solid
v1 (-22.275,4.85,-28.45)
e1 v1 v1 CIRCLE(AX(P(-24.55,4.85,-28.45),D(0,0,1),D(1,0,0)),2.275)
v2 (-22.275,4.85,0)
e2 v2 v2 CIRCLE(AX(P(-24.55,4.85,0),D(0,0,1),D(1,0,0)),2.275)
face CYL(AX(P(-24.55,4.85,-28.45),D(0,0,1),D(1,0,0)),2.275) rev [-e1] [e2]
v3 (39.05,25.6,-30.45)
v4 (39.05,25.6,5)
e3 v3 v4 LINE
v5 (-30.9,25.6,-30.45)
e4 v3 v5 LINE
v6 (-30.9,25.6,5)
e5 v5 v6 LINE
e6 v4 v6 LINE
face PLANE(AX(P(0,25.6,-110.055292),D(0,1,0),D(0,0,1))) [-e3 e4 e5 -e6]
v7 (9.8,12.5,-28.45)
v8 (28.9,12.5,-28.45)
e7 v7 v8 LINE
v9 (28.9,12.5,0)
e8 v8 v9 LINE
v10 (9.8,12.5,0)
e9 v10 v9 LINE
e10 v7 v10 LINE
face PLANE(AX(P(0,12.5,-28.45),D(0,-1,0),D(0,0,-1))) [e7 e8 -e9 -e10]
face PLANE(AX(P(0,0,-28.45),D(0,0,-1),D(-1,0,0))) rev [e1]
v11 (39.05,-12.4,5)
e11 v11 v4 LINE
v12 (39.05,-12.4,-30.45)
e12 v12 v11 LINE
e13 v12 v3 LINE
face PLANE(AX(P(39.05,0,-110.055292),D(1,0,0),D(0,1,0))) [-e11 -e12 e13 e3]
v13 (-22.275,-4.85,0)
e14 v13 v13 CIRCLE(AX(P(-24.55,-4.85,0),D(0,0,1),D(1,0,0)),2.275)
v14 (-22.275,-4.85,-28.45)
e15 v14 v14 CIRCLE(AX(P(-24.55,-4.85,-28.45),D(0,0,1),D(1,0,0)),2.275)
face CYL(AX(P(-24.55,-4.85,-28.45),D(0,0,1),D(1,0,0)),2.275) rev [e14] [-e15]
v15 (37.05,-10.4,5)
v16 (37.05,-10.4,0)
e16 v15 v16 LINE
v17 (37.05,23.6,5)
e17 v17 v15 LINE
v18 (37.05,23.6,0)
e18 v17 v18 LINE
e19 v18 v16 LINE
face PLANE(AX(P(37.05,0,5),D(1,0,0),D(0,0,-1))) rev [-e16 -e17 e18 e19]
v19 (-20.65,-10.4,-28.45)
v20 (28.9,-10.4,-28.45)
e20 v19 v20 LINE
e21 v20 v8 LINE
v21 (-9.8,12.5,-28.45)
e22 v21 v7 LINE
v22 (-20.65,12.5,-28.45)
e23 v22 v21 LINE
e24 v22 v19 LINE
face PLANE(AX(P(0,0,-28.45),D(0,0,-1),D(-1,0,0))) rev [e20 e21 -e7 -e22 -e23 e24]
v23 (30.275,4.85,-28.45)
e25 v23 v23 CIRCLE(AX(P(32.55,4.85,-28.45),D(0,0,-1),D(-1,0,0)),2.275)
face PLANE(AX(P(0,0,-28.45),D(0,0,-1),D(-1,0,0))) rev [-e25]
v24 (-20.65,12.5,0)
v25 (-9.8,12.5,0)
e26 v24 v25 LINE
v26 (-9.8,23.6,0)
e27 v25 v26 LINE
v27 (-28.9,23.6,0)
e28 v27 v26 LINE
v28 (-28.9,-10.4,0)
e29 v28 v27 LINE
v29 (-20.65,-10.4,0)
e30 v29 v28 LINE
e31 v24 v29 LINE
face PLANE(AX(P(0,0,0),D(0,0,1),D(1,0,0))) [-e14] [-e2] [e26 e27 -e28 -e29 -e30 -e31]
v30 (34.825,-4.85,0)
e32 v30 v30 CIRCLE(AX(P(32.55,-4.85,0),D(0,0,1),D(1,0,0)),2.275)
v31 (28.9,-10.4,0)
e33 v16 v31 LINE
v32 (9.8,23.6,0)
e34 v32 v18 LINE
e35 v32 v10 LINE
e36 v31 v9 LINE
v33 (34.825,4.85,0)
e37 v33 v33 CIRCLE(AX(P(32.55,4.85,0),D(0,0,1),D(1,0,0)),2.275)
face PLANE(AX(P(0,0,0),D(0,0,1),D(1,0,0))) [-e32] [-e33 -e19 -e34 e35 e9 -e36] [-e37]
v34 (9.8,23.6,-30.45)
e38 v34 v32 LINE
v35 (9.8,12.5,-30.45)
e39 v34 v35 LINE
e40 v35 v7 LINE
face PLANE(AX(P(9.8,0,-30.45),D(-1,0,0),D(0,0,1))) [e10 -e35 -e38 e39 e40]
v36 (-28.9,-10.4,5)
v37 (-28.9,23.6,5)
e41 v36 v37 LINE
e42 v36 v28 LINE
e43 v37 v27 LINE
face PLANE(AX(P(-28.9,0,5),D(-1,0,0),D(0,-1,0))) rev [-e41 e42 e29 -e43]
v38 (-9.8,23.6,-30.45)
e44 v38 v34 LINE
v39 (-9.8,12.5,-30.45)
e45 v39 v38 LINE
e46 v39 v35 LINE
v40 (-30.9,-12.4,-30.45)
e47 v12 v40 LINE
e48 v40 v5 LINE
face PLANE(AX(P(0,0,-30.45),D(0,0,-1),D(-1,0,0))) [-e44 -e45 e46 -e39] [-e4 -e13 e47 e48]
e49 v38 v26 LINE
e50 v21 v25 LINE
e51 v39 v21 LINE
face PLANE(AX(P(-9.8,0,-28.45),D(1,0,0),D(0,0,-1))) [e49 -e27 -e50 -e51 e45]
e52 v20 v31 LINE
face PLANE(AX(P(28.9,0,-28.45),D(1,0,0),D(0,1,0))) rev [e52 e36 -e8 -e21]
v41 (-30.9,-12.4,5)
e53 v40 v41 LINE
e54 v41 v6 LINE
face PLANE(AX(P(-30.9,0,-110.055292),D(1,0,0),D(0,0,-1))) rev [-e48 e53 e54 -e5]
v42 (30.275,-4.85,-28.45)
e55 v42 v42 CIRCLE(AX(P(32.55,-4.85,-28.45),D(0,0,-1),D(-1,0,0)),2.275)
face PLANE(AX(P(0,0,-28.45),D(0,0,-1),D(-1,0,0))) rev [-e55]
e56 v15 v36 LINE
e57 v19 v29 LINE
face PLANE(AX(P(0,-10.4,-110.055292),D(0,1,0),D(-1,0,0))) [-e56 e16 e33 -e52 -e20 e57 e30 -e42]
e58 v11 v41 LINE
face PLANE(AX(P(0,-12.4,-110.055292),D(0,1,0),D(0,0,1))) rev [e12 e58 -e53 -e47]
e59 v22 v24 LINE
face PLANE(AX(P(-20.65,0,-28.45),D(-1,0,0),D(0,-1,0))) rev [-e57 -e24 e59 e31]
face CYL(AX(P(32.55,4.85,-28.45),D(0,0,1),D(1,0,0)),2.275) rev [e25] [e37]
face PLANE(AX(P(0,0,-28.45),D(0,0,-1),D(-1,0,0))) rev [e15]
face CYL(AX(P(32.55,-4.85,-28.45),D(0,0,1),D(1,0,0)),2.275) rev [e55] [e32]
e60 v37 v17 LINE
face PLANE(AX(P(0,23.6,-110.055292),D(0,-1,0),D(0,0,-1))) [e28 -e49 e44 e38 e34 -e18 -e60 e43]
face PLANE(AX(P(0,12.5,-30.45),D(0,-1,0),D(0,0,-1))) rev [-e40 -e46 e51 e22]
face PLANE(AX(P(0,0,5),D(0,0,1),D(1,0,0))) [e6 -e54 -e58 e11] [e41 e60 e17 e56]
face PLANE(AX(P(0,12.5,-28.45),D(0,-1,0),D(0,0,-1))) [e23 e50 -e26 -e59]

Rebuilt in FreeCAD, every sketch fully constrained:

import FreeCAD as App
import Part
import Sketcher
from FreeCAD import Vector

doc = App.newDocument("Part")
body = doc.addObject("PartDesign::Body", "Body")
body.AllowCompound = True

sketch1 = body.newObject("Sketcher::SketchObject", "Sketch")
sketch1.AttachmentSupport = (doc.getObject("XY_Plane"), [""])
sketch1.MapMode = "FlatFace"
sketch1.addGeometry([
    Part.LineSegment(Vector(-20.6, 12.5, 0), Vector(-9.8, 12.5, 0)),
    Part.LineSegment(Vector(-9.8, 12.5, 0), Vector(-9.8, 23.6, 0)),
    Part.LineSegment(Vector(-9.8, 23.6, 0), Vector(-28.9, 23.6, 0)),
    Part.LineSegment(Vector(-28.9, 23.6, 0), Vector(-28.9, -10.4, 0)),
    Part.LineSegment(Vector(-28.9, -10.4, 0), Vector(-20.6, -10.4, 0)),
    Part.LineSegment(Vector(-20.6, -10.4, 0), Vector(-20.6, 12.5, 0)),
    Part.Circle(Vector(-24.6, 4.8, 0), Vector(0, 0, 1), 2.3),
    Part.Circle(Vector(-24.6, -4.8, 0), Vector(0, 0, 1), 2.3),
    Part.LineSegment(Vector(9.8, 12.5, 0), Vector(28.9, 12.5, 0)),
    Part.LineSegment(Vector(28.9, 12.5, 0), Vector(28.9, -10.4, 0)),
    Part.LineSegment(Vector(28.9, -10.4, 0), Vector(37, -10.4, 0)),
    Part.LineSegment(Vector(37, -10.4, 0), Vector(37, 23.6, 0)),
    Part.LineSegment(Vector(37, 23.6, 0), Vector(9.8, 23.6, 0)),
    Part.LineSegment(Vector(9.8, 23.6, 0), Vector(9.8, 12.5, 0)),
    Part.Circle(Vector(32.5, 4.8, 0), Vector(0, 0, 1), 2.3),
    Part.Circle(Vector(32.5, -4.8, 0), Vector(0, 0, 1), 2.3),
], False)
sketch1.addConstraint([
    Sketcher.Constraint("Coincident", 0, 2, 1, 1),
    Sketcher.Constraint("Coincident", 1, 2, 2, 1),
    Sketcher.Constraint("Coincident", 2, 2, 3, 1),
    Sketcher.Constraint("Coincident", 3, 2, 4, 1),
    Sketcher.Constraint("Coincident", 4, 2, 5, 1),
    Sketcher.Constraint("Coincident", 5, 2, 0, 1),
    Sketcher.Constraint("Coincident", 8, 2, 9, 1),
    Sketcher.Constraint("Coincident", 9, 2, 10, 1),
    Sketcher.Constraint("Coincident", 10, 2, 11, 1),
    Sketcher.Constraint("Coincident", 11, 2, 12, 1),
    Sketcher.Constraint("Coincident", 12, 2, 13, 1),
    Sketcher.Constraint("Coincident", 13, 2, 8, 1),
    Sketcher.Constraint("Horizontal", 0),
    Sketcher.Constraint("Vertical", 1),
    Sketcher.Constraint("Horizontal", 2),
    Sketcher.Constraint("Vertical", 3),
    Sketcher.Constraint("Horizontal", 4),
    Sketcher.Constraint("Vertical", 5),
    Sketcher.Constraint("Horizontal", 8),
    Sketcher.Constraint("Vertical", 9),
    Sketcher.Constraint("Horizontal", 10),
    Sketcher.Constraint("Vertical", 11),
    Sketcher.Constraint("Horizontal", 12),
    Sketcher.Constraint("Vertical", 13),
    Sketcher.Constraint("Equal", 6, 7),
    Sketcher.Constraint("Equal", 7, 14),
    Sketcher.Constraint("Equal", 14, 15),
    Sketcher.Constraint("Symmetric", 3, 2, 9, 2, -2),
    Sketcher.Constraint("Symmetric", 1, 2, 12, 2, -2),
    Sketcher.Constraint("Symmetric", 6, 3, 7, 3, -1),
    Sketcher.Constraint("Symmetric", 14, 3, 15, 3, -1),
    Sketcher.Constraint("Horizontal", 6, 3, 14, 3),
    Sketcher.Constraint("Horizontal", 5, 2, 8, 2),
    Sketcher.Constraint("Diameter", 6, 4.55),
    Sketcher.Constraint("DistanceY", 3, 2, 3, 1, 34.0),
    Sketcher.Constraint("DistanceX", 2, 2, 2, 1, 19.1),
    Sketcher.Constraint("DistanceY", 1, 1, 1, 2, 11.1),
    Sketcher.Constraint("DistanceX", 0, 1, 0, 2, 10.85),
    Sketcher.Constraint("DistanceX", 10, 1, 10, 2, 8.15),
    Sketcher.Constraint("DistanceX", 0, 2, -1, 1, 9.8),
    Sketcher.Constraint("DistanceY", -1, 1, 0, 2, 12.5),
    Sketcher.Constraint("DistanceY", 7, 3, 6, 3, 9.7),
    Sketcher.Constraint("DistanceX", 6, 3, 14, 3, 57.1),
    Sketcher.Constraint("DistanceX", 7, 3, 4, 2, 3.9),
])
pad1 = body.newObject("PartDesign::Pad", "Pad")
pad1.Profile = sketch1
pad1.Length = 28.45
pad1.Reversed = True

sketch2 = body.newObject("Sketcher::SketchObject", "Sketch001")
sketch2.AttachmentSupport = (doc.getObject("XY_Plane"), [""])
sketch2.MapMode = "FlatFace"
sketch2.AttachmentOffset = App.Placement(Vector(0, 0, -28.45), App.Rotation())
sketch2.addGeometry([
    Part.LineSegment(Vector(-10, 12, 0), Vector(-10, 24, 0)),
    Part.LineSegment(Vector(-10, 24, 0), Vector(-29, 24, 0)),
    Part.LineSegment(Vector(-29, 24, 0), Vector(-29, -10, 0)),
    Part.LineSegment(Vector(-29, -10, 0), Vector(37, -10, 0)),
    Part.LineSegment(Vector(37, -10, 0), Vector(37, 24, 0)),
    Part.LineSegment(Vector(37, 24, 0), Vector(10, 24, 0)),
    Part.LineSegment(Vector(10, 24, 0), Vector(10, 12, 0)),
    Part.LineSegment(Vector(10, 12, 0), Vector(-10, 12, 0)),
], False)
sketch2.addConstraint([
    Sketcher.Constraint("Coincident", 0, 2, 1, 1),
    Sketcher.Constraint("Coincident", 1, 2, 2, 1),
    Sketcher.Constraint("Coincident", 2, 2, 3, 1),
    Sketcher.Constraint("Coincident", 3, 2, 4, 1),
    Sketcher.Constraint("Coincident", 4, 2, 5, 1),
    Sketcher.Constraint("Coincident", 5, 2, 6, 1),
    Sketcher.Constraint("Coincident", 6, 2, 7, 1),
    Sketcher.Constraint("Coincident", 7, 2, 0, 1),
    Sketcher.Constraint("Vertical", 0),
    Sketcher.Constraint("Horizontal", 1),
    Sketcher.Constraint("Vertical", 2),
    Sketcher.Constraint("Horizontal", 3),
    Sketcher.Constraint("Vertical", 4),
    Sketcher.Constraint("Horizontal", 5),
    Sketcher.Constraint("Vertical", 6),
    Sketcher.Constraint("Horizontal", 7),
    Sketcher.Constraint("Symmetric", 0, 2, 5, 2, -2),
    Sketcher.Constraint("DistanceY", 2, 2, 2, 1, 34.0),
    Sketcher.Constraint("DistanceX", 1, 2, 1, 1, 19.1),
    Sketcher.Constraint("DistanceX", 7, 2, 7, 1, 19.6),
    Sketcher.Constraint("DistanceY", 0, 1, 0, 2, 11.1),
    Sketcher.Constraint("DistanceX", 3, 1, 3, 2, 65.95),
    Sketcher.Constraint("DistanceY", -1, 1, 0, 2, 23.6),
])
pad2 = body.newObject("PartDesign::Pad", "Pad001")
pad2.Profile = sketch2
pad2.Length = 2
pad2.Reversed = True

sketch3 = body.newObject("Sketcher::SketchObject", "Sketch002")
sketch3.AttachmentSupport = (doc.getObject("XY_Plane"), [""])
sketch3.MapMode = "FlatFace"
sketch3.addGeometry([
    Part.LineSegment(Vector(-31, 26, 0), Vector(-31, -12, 0)),
    Part.LineSegment(Vector(-31, -12, 0), Vector(39, -12, 0)),
    Part.LineSegment(Vector(39, -12, 0), Vector(39, 26, 0)),
    Part.LineSegment(Vector(39, 26, 0), Vector(-31, 26, 0)),
    Part.LineSegment(Vector(-29, 24, 0), Vector(37, 24, 0)),
    Part.LineSegment(Vector(37, 24, 0), Vector(37, -10, 0)),
    Part.LineSegment(Vector(37, -10, 0), Vector(-29, -10, 0)),
    Part.LineSegment(Vector(-29, -10, 0), Vector(-29, 24, 0)),
], False)
sketch3.addConstraint([
    Sketcher.Constraint("Coincident", 0, 2, 1, 1),
    Sketcher.Constraint("Coincident", 1, 2, 2, 1),
    Sketcher.Constraint("Coincident", 2, 2, 3, 1),
    Sketcher.Constraint("Coincident", 3, 2, 0, 1),
    Sketcher.Constraint("Coincident", 4, 2, 5, 1),
    Sketcher.Constraint("Coincident", 5, 2, 6, 1),
    Sketcher.Constraint("Coincident", 6, 2, 7, 1),
    Sketcher.Constraint("Coincident", 7, 2, 4, 1),
    Sketcher.Constraint("Vertical", 0),
    Sketcher.Constraint("Horizontal", 1),
    Sketcher.Constraint("Vertical", 2),
    Sketcher.Constraint("Horizontal", 3),
    Sketcher.Constraint("Horizontal", 4),
    Sketcher.Constraint("Vertical", 5),
    Sketcher.Constraint("Horizontal", 6),
    Sketcher.Constraint("Vertical", 7),
    Sketcher.Constraint("DistanceY", 0, 2, 0, 1, 38.0),
    Sketcher.Constraint("DistanceY", 5, 2, 5, 1, 34.0),
    Sketcher.Constraint("DistanceX", 4, 2, 2, 2, 2.0),
    Sketcher.Constraint("DistanceY", 4, 2, 2, 2, 2.0),
    Sketcher.Constraint("DistanceX", 0, 2, 6, 2, 2.0),
    Sketcher.Constraint("DistanceX", 1, 1, 1, 2, 69.95),
    Sketcher.Constraint("DistanceX", 0, 2, -1, 1, 30.9),
    Sketcher.Constraint("DistanceY", 0, 2, -1, 1, 12.4),
])
pad3 = body.newObject("PartDesign::Pad", "Pad002")
pad3.Profile = sketch3
pad3.Length = 30.45
pad3.Reversed = True

sketch4 = body.newObject("Sketcher::SketchObject", "Sketch003")
sketch4.AttachmentSupport = (doc.getObject("XY_Plane"), [""])
sketch4.MapMode = "FlatFace"
sketch4.addGeometry([
    Part.LineSegment(Vector(-31, 26, 0), Vector(-31, -12, 0)),
    Part.LineSegment(Vector(-31, -12, 0), Vector(39, -12, 0)),
    Part.LineSegment(Vector(39, -12, 0), Vector(39, 26, 0)),
    Part.LineSegment(Vector(39, 26, 0), Vector(-31, 26, 0)),
    Part.LineSegment(Vector(-29, 24, 0), Vector(37, 24, 0)),
    Part.LineSegment(Vector(37, 24, 0), Vector(37, -10, 0)),
    Part.LineSegment(Vector(37, -10, 0), Vector(-29, -10, 0)),
    Part.LineSegment(Vector(-29, -10, 0), Vector(-29, 24, 0)),
], False)
sketch4.addConstraint([
    Sketcher.Constraint("Coincident", 0, 2, 1, 1),
    Sketcher.Constraint("Coincident", 1, 2, 2, 1),
    Sketcher.Constraint("Coincident", 2, 2, 3, 1),
    Sketcher.Constraint("Coincident", 3, 2, 0, 1),
    Sketcher.Constraint("Coincident", 4, 2, 5, 1),
    Sketcher.Constraint("Coincident", 5, 2, 6, 1),
    Sketcher.Constraint("Coincident", 6, 2, 7, 1),
    Sketcher.Constraint("Coincident", 7, 2, 4, 1),
    Sketcher.Constraint("Vertical", 0),
    Sketcher.Constraint("Horizontal", 1),
    Sketcher.Constraint("Vertical", 2),
    Sketcher.Constraint("Horizontal", 3),
    Sketcher.Constraint("Horizontal", 4),
    Sketcher.Constraint("Vertical", 5),
    Sketcher.Constraint("Horizontal", 6),
    Sketcher.Constraint("Vertical", 7),
    Sketcher.Constraint("DistanceY", 0, 2, 0, 1, 38.0),
    Sketcher.Constraint("DistanceY", 5, 2, 5, 1, 34.0),
    Sketcher.Constraint("DistanceX", 4, 2, 2, 2, 2.0),
    Sketcher.Constraint("DistanceY", 4, 2, 2, 2, 2.0),
    Sketcher.Constraint("DistanceX", 0, 2, 6, 2, 2.0),
    Sketcher.Constraint("DistanceX", 1, 1, 1, 2, 69.95),
    Sketcher.Constraint("DistanceX", 0, 2, -1, 1, 30.9),
    Sketcher.Constraint("DistanceY", 0, 2, -1, 1, 12.4),
])
pad4 = body.newObject("PartDesign::Pad", "Pad003")
pad4.Profile = sketch4
pad4.Length = 5

doc.recompute()
